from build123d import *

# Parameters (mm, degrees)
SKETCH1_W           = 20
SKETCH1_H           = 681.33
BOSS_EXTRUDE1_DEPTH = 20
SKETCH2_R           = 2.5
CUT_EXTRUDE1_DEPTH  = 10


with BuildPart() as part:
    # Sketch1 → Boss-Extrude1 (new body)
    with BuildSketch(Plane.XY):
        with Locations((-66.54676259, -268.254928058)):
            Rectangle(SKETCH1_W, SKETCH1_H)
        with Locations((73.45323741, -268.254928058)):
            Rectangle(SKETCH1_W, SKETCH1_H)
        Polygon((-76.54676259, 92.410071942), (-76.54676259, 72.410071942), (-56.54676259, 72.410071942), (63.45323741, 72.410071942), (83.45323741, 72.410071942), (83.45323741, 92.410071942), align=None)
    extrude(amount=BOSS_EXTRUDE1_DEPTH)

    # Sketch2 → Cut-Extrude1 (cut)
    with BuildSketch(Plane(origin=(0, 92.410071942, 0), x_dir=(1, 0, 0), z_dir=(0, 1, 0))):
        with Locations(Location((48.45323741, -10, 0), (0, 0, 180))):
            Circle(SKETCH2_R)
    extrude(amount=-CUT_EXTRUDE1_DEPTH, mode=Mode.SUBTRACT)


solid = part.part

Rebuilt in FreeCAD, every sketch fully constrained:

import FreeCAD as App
import Part
import Sketcher

doc = App.newDocument("Part")
body = doc.addObject("PartDesign::Body", "Body")

# Sketch on XY plane
sketch1 = body.newObject("Sketcher::SketchObject", "Sketch")
sketch1.AttachmentSupport = (doc.getObject("XY_Plane"), [""])
sketch1.MapMode = "FlatFace"
sketch1.addGeometry(Part.LineSegment(App.Vector(-76.546763, -608.919928, 0), App.Vector(-56.546763, -608.919928, 0)), False)
sketch1.addGeometry(Part.LineSegment(App.Vector(-56.546763, -608.919928, 0), App.Vector(-56.546763, 72.410072, 0)), False)
sketch1.addGeometry(Part.LineSegment(App.Vector(-56.546763, 72.410072, 0), App.Vector(63.453237, 72.410072, 0)), False)
sketch1.addGeometry(Part.LineSegment(App.Vector(63.453237, 72.410072, 0), App.Vector(63.453237, -608.919928, 0)), False)
sketch1.addGeometry(Part.LineSegment(App.Vector(63.453237, -608.919928, 0), App.Vector(83.453237, -608.919928, 0)), False)
sketch1.addGeometry(Part.LineSegment(App.Vector(83.453237, -608.919928, 0), App.Vector(83.453237, 92.410072, 0)), False)
sketch1.addGeometry(Part.LineSegment(App.Vector(83.453237, 92.410072, 0), App.Vector(-76.546763, 92.410072, 0)), False)
sketch1.addGeometry(Part.LineSegment(App.Vector(-76.546763, 92.410072, 0), App.Vector(-76.546763, -608.919928, 0)), False)
sketch1.addConstraint(Sketcher.Constraint("Coincident", 0, 2, 1, 1))
sketch1.addConstraint(Sketcher.Constraint("Coincident", 1, 2, 2, 1))
sketch1.addConstraint(Sketcher.Constraint("Coincident", 2, 2, 3, 1))
sketch1.addConstraint(Sketcher.Constraint("Coincident", 3, 2, 4, 1))
sketch1.addConstraint(Sketcher.Constraint("Coincident", 4, 2, 5, 1))
sketch1.addConstraint(Sketcher.Constraint("Coincident", 5, 2, 6, 1))
sketch1.addConstraint(Sketcher.Constraint("Coincident", 6, 2, 7, 1))
sketch1.addConstraint(Sketcher.Constraint("Coincident", 7, 2, 0, 1))
sketch1.addConstraint(Sketcher.Constraint("Horizontal", 0))
sketch1.addConstraint(Sketcher.Constraint("Vertical", 1))
sketch1.addConstraint(Sketcher.Constraint("Horizontal", 2))
sketch1.addConstraint(Sketcher.Constraint("Vertical", 3))
sketch1.addConstraint(Sketcher.Constraint("Horizontal", 4))
sketch1.addConstraint(Sketcher.Constraint("Vertical", 5))
sketch1.addConstraint(Sketcher.Constraint("Horizontal", 6))
sketch1.addConstraint(Sketcher.Constraint("Vertical", 7))
sketch1.addConstraint(Sketcher.Constraint("Horizontal", 0, 2, 3, 2))
sketch1.addConstraint(Sketcher.Constraint("Equal", 0, 4))
sketch1.addConstraint(Sketcher.Constraint("DistanceX", 0, 1, 0, 2, 20.0))
sketch1.addConstraint(Sketcher.Constraint("DistanceX", 2, 1, 2, 2, 120.0))
sketch1.addConstraint(Sketcher.Constraint("DistanceY", 2, 2, 5, 2, 20.0))
sketch1.addConstraint(Sketcher.Constraint("DistanceY", 1, 1, 1, 2, 681.33))
sketch1.addConstraint(Sketcher.Constraint("DistanceY", 0, 2, -1, 1, 608.919928))
sketch1.addConstraint(Sketcher.Constraint("DistanceX", 0, 2, -1, 1, 56.546763))
pad1 = body.newObject("PartDesign::Pad", "Pad")
pad1.Profile = sketch1
pad1.Length = 20

# Sketch on XZ plane
sketch2 = body.newObject("Sketcher::SketchObject", "Sketch001")
sketch2.AttachmentSupport = (doc.getObject("XZ_Plane"), [""])
sketch2.MapMode = "FlatFace"
sketch2.AttachmentOffset = App.Placement(App.Vector(0, 0, -92.410072), App.Rotation())
sketch2.addGeometry(Part.Circle(App.Vector(48.453237, 10, 0), App.Vector(0, 0, 1), 2.5), False)
sketch2.addConstraint(Sketcher.Constraint("Diameter", 0, 5.0))
sketch2.addConstraint(Sketcher.Constraint("DistanceY", -1, 1, 0, 3, 10.0))
sketch2.addConstraint(Sketcher.Constraint("DistanceX", -1, 1, 0, 3, 48.453237))
pocket1 = body.newObject("PartDesign::Pocket", "Pocket")
pocket1.Profile = sketch2
pocket1.Length = 10
pocket1.Reversed = True

doc.recompute()
